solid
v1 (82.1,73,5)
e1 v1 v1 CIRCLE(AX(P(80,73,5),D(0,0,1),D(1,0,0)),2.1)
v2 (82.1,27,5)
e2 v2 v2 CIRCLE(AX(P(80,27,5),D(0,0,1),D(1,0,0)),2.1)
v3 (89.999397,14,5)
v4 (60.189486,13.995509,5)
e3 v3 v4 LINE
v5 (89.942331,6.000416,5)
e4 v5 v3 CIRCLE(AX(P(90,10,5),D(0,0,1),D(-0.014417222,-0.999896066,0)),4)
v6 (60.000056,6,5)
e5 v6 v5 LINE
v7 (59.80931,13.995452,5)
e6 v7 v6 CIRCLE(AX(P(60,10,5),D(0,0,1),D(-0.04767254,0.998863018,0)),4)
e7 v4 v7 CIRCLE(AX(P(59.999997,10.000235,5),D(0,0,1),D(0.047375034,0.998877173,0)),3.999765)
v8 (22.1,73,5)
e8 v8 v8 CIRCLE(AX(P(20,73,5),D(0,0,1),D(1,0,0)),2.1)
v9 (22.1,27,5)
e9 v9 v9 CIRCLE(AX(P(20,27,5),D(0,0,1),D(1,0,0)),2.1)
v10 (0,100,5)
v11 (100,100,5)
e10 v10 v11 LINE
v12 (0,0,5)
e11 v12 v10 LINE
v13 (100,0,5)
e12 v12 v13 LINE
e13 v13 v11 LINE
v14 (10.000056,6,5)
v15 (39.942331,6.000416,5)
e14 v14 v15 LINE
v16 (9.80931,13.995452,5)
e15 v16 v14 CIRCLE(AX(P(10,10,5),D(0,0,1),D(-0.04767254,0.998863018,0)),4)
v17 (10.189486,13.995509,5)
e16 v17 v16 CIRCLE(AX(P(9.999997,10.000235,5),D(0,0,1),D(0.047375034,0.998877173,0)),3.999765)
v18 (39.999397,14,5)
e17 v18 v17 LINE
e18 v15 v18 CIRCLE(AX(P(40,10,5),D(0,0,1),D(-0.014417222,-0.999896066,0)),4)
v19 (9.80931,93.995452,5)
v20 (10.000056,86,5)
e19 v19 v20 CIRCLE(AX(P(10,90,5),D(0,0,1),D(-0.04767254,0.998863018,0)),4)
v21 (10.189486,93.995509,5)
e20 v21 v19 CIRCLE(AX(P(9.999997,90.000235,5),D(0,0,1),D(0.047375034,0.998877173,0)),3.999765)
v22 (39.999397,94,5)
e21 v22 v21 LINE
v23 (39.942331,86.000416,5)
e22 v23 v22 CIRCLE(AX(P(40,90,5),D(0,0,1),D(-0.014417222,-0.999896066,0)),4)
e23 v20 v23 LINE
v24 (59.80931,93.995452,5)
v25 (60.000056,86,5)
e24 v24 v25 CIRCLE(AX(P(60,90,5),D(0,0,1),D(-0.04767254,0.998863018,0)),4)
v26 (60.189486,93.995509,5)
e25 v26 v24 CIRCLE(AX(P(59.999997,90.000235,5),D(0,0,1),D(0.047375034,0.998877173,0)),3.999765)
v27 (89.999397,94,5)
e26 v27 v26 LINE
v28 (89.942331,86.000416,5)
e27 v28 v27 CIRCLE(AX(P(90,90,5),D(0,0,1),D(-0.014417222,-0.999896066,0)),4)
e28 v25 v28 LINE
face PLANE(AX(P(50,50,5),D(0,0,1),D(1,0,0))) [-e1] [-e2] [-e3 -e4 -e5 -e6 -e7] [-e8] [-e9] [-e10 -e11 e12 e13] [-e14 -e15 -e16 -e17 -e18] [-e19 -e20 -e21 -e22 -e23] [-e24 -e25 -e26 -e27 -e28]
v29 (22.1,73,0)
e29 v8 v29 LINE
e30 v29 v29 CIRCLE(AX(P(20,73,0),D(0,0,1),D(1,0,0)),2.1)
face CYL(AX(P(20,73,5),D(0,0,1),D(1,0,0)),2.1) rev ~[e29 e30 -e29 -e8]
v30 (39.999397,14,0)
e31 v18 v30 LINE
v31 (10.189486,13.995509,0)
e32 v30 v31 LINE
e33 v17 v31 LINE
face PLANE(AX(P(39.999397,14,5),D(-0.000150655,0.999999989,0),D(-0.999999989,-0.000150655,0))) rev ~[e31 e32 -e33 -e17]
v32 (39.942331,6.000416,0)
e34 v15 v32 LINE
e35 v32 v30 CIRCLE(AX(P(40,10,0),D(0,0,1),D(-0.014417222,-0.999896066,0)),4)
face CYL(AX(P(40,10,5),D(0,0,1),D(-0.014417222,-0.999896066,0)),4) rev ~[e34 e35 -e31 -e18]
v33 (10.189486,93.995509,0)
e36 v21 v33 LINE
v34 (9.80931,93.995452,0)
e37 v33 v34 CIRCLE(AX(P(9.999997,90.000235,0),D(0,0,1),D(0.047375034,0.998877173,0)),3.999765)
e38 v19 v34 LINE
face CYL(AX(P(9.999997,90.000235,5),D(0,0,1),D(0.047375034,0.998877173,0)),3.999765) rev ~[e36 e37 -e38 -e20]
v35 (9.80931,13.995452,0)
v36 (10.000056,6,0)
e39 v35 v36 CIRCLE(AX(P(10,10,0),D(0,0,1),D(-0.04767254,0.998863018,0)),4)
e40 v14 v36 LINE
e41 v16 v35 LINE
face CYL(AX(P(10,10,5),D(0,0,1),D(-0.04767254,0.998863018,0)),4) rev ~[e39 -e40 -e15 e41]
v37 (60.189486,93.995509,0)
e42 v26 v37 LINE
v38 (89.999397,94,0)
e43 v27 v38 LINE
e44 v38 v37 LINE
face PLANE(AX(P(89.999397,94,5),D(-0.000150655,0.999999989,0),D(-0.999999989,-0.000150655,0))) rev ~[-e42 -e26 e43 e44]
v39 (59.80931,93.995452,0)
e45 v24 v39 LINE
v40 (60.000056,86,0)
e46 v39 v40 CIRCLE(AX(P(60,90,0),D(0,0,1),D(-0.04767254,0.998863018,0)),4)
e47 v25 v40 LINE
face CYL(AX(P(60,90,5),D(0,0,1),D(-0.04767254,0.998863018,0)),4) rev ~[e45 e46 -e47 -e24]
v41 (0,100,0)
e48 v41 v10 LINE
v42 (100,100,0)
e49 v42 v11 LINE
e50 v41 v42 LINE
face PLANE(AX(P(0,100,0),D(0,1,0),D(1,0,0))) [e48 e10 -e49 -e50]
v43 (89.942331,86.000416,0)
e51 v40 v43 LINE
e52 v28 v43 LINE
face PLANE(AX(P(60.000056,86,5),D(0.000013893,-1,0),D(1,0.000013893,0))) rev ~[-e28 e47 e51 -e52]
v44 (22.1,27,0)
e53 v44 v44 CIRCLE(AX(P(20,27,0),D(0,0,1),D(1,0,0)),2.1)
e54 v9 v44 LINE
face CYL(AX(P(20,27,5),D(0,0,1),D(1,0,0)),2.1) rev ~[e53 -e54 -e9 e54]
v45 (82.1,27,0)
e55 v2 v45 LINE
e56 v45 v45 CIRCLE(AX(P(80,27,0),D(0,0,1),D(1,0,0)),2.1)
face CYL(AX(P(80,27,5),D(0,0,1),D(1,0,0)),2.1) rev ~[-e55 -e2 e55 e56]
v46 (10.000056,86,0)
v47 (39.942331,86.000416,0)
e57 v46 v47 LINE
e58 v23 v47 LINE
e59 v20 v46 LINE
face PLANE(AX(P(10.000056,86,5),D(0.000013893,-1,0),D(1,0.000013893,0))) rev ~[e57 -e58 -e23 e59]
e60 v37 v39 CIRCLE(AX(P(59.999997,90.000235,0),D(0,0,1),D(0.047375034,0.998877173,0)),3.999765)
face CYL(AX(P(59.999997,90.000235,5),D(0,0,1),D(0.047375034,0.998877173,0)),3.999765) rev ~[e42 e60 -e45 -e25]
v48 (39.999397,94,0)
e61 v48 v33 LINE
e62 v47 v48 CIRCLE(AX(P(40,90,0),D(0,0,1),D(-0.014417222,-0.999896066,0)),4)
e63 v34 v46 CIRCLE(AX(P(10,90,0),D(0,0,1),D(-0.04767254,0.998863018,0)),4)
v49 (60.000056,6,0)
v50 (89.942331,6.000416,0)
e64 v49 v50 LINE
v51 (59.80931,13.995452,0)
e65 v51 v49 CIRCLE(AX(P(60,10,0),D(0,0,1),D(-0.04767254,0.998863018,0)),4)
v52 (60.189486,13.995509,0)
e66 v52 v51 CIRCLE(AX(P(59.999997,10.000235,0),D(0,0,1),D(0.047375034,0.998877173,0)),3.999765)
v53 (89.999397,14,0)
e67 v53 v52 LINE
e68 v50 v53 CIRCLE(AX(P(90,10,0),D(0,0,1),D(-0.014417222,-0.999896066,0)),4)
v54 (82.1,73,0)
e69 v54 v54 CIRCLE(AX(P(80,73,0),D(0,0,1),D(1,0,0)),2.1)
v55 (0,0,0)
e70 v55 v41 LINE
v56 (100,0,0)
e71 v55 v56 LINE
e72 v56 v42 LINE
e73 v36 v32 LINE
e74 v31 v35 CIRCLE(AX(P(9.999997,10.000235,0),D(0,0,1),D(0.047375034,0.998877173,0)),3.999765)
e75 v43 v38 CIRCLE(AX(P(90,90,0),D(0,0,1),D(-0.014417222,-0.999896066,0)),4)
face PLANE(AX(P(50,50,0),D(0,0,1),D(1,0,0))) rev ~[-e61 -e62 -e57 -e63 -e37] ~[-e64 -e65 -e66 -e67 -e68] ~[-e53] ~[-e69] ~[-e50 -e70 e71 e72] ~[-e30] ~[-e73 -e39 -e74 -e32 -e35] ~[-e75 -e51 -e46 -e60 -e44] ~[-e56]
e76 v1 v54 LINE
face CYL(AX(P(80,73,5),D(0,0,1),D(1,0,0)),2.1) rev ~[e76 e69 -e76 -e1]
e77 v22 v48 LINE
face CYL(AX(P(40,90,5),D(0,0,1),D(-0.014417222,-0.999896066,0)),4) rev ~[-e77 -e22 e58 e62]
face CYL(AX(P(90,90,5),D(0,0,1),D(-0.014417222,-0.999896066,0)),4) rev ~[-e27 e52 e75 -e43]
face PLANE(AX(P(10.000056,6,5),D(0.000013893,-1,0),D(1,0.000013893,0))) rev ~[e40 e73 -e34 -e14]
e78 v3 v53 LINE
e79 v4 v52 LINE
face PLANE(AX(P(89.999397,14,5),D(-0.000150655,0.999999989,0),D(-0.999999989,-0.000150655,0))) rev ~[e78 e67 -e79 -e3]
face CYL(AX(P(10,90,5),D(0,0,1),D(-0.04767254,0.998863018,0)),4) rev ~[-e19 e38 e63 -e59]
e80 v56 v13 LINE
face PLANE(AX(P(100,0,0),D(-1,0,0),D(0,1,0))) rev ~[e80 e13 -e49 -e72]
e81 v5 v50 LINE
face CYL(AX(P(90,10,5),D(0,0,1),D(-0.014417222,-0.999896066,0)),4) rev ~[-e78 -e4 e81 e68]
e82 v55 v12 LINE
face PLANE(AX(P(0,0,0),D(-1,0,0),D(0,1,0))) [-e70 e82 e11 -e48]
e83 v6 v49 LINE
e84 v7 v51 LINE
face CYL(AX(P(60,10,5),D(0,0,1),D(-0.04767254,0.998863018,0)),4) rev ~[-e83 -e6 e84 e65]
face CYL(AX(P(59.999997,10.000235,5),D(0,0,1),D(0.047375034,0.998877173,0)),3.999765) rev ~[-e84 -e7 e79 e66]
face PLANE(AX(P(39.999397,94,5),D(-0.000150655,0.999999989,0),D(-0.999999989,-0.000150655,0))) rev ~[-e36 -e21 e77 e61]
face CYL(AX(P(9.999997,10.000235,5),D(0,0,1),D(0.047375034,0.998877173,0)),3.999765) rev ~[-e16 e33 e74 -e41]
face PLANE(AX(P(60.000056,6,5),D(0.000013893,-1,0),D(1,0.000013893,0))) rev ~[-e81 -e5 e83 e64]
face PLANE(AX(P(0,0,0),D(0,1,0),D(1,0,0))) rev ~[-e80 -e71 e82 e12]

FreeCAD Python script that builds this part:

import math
import FreeCAD as App
import Part
import Sketcher
from FreeCAD import Vector


def add_polygon(sketch, points):
    """Adds a closed chain of lines whose ends are joined by coincident constraints."""
    first, n = sketch.GeometryCount, len(points)
    for a, b in zip(points, points[1:] + points[:1]):
        sketch.addGeometry(Part.LineSegment(App.Vector(*a, 0), App.Vector(*b, 0)), False)
    for i in range(n):
        sketch.addConstraint(Sketcher.Constraint("Coincident", first + i, 2, first + (i + 1) % n, 1))

doc = App.newDocument("Part")
body = doc.addObject("PartDesign::Body", "Body")

sketch1 = body.newObject("Sketcher::SketchObject", "Sketch")
sketch1.AttachmentSupport = (doc.getObject("XY_Plane"), [""])
sketch1.MapMode = "FlatFace"
add_polygon(sketch1, [(0, 100), (0, 0), (100, 0), (100, 100)])
sketch1.addConstraint([
    Sketcher.Constraint("Vertical", 0),
    Sketcher.Constraint("Horizontal", 1),
    Sketcher.Constraint("Vertical", 2),
    Sketcher.Constraint("Horizontal", 3),
    Sketcher.Constraint("Coincident", 0, 2, -1, 1),
    Sketcher.Constraint("Equal", 3, 0),
    Sketcher.Constraint("DistanceX", 1, 1, 1, 2, 100.0),
])
pad1 = body.newObject("PartDesign::Pad", "Pad")
pad1.Profile = sketch1
pad1.Length = 5

sketch2 = body.newObject("Sketcher::SketchObject", "Sketch001")
sketch2.AttachmentSupport = (doc.getObject("XY_Plane"), [""])
sketch2.MapMode = "FlatFace"
sketch2.AttachmentOffset = App.Placement(Vector(0, 0, 5), App.Rotation())
sketch2.addGeometry([
    Part.ArcOfCircle(Part.Circle(Vector(9.999997, 10.000235, 0), Vector(0, 0, 1), 3.999765), math.radians(87.284594), math.radians(92.732587)),
    Part.ArcOfCircle(Part.Circle(Vector(10, 10, 0), Vector(0, 0, 1), 4), math.radians(92.732471), math.radians(270.0008)),
    Part.LineSegment(Vector(10.000056, 6, 0), Vector(39.942331, 6.000416, 0)),
    Part.ArcOfCircle(Part.Circle(Vector(40, 10, 0), Vector(0, 0, 1), 4), math.radians(-90.826075), math.radians(90.008636)),
    Part.LineSegment(Vector(39.999397, 14, 0), Vector(10.189486, 13.995509, 0)),
    Part.LineSegment(Vector(10.000056, 86, 0), Vector(39.942331, 86.000416, 0)),
    Part.ArcOfCircle(Part.Circle(Vector(40, 90, 0), Vector(0, 0, 1), 4), math.radians(-90.826075), math.radians(90.008636)),
    Part.LineSegment(Vector(39.999397, 94, 0), Vector(10.189486, 93.995509, 0)),
    Part.ArcOfCircle(Part.Circle(Vector(9.999997, 90.000235, 0), Vector(0, 0, 1), 3.999765), math.radians(87.284594), math.radians(92.732587)),
    Part.ArcOfCircle(Part.Circle(Vector(10, 90, 0), Vector(0, 0, 1), 4), math.radians(92.732471), math.radians(270.0008)),
    Part.LineSegment(Vector(60.000056, 6, 0), Vector(89.942331, 6.000416, 0)),
    Part.ArcOfCircle(Part.Circle(Vector(90, 10, 0), Vector(0, 0, 1), 4), math.radians(-90.826075), math.radians(90.008636)),
    Part.LineSegment(Vector(89.999397, 14, 0), Vector(60.189486, 13.995509, 0)),
    Part.ArcOfCircle(Part.Circle(Vector(59.999997, 10.000235, 0), Vector(0, 0, 1), 3.999765), math.radians(87.284594), math.radians(92.732587)),
    Part.ArcOfCircle(Part.Circle(Vector(60, 10, 0), Vector(0, 0, 1), 4), math.radians(92.732471), math.radians(270.0008)),
    Part.LineSegment(Vector(60.000056, 86, 0), Vector(89.942331, 86.000416, 0)),
    Part.ArcOfCircle(Part.Circle(Vector(90, 90, 0), Vector(0, 0, 1), 4), math.radians(-90.826075), math.radians(90.008636)),
    Part.LineSegment(Vector(89.999397, 94, 0), Vector(60.189486, 93.995509, 0)),
    Part.ArcOfCircle(Part.Circle(Vector(59.999997, 90.000235, 0), Vector(0, 0, 1), 3.999765), math.radians(87.284594), math.radians(92.732587)),
    Part.ArcOfCircle(Part.Circle(Vector(60, 90, 0), Vector(0, 0, 1), 4), math.radians(92.732471), math.radians(270.0008)),
], False)
sketch2.addConstraint([
    Sketcher.Constraint("Coincident", 0, 2, 1, 1),
    Sketcher.Constraint("Tangent", 1, 2, 2, 1),
    Sketcher.Constraint("Coincident", 2, 2, 3, 1),
    Sketcher.Constraint("Tangent", 3, 2, 4, 1),
    Sketcher.Constraint("Coincident", 4, 2, 0, 1),
    Sketcher.Constraint("Coincident", 5, 2, 6, 1),
    Sketcher.Constraint("Tangent", 6, 2, 7, 1),
    Sketcher.Constraint("Coincident", 7, 2, 8, 1),
    Sketcher.Constraint("Coincident", 8, 2, 9, 1),
    Sketcher.Constraint("Tangent", 9, 2, 5, 1),
    Sketcher.Constraint("Coincident", 10, 2, 11, 1),
    Sketcher.Constraint("Tangent", 11, 2, 12, 1),
    Sketcher.Constraint("Coincident", 12, 2, 13, 1),
    Sketcher.Constraint("Coincident", 13, 2, 14, 1),
    Sketcher.Constraint("Tangent", 14, 2, 10, 1),
    Sketcher.Constraint("Coincident", 15, 2, 16, 1),
    Sketcher.Constraint("Tangent", 16, 2, 17, 1),
    Sketcher.Constraint("Coincident", 17, 2, 18, 1),
    Sketcher.Constraint("Coincident", 18, 2, 19, 1),
    Sketcher.Constraint("Tangent", 19, 2, 15, 1),
    Sketcher.Constraint("Equal", 1, 3),
    Sketcher.Constraint("Equal", 3, 6),
    Sketcher.Constraint("Equal", 0, 8),
    Sketcher.Constraint("Equal", 6, 9),
    Sketcher.Constraint("Equal", 9, 11),
    Sketcher.Constraint("Equal", 8, 13),
    Sketcher.Constraint("Equal", 11, 14),
    Sketcher.Constraint("Equal", 14, 16),
    Sketcher.Constraint("Equal", 13, 18),
    Sketcher.Constraint("Equal", 16, 19),
    Sketcher.Constraint("Parallel", 2, 5),
    Sketcher.Constraint("Parallel", 4, 7),
    Sketcher.Constraint("Parallel", 5, 10),
    Sketcher.Constraint("Parallel", 7, 12),
    Sketcher.Constraint("Parallel", 10, 15),
    Sketcher.Constraint("Parallel", 12, 17),
    Sketcher.Constraint("Horizontal", 1, 3, 3, 3),
    Sketcher.Constraint("Horizontal", 6, 3, 9, 3),
    Sketcher.Constraint("Horizontal", 3, 3, 11, 3),
    Sketcher.Constraint("Horizontal", 0, 3, 13, 3),
    Sketcher.Constraint("Horizontal", 11, 3, 14, 3),
    Sketcher.Constraint("Horizontal", 9, 3, 16, 3),
    Sketcher.Constraint("Horizontal", 8, 3, 18, 3),
    Sketcher.Constraint("Horizontal", 16, 3, 19, 3),
    Sketcher.Constraint("Horizontal", 0, 2, 13, 2),
    Sketcher.Constraint("Horizontal", 8, 2, 18, 2),
    Sketcher.Constraint("Vertical", 3, 3, 6, 3),
    Sketcher.Constraint("Vertical", 0, 3, 8, 3),
    Sketcher.Constraint("Vertical", 1, 3, 9, 3),
    Sketcher.Constraint("Vertical", 11, 3, 16, 3),
    Sketcher.Constraint("Vertical", 13, 3, 18, 3),
    Sketcher.Constraint("Vertical", 0, 2, 8, 2),
    Sketcher.Constraint("Equal", 5, 10),
    Sketcher.Constraint("Radius", 1, 4.0),
    Sketcher.Constraint("DistanceX", -1, 1, 1, 3, 10.0),
    Sketcher.Constraint("DistanceY", -1, 1, 1, 3, 10.0),
    Sketcher.Constraint("DistanceX", -1, 1, 3, 3, 40.0),
    Sketcher.Constraint("DistanceY", -1, 1, 6, 3, 90.0),
    Sketcher.Constraint("DistanceX", -1, 1, 11, 3, 90.0),
    Sketcher.Constraint("Radius", 0, 3.999765),
    Sketcher.Constraint("DistanceX", 3, 2, 13, 3, 20.0006),
    Sketcher.Constraint("Distance", 4, 29.809911),
    Sketcher.Constraint("DistanceX", -1, 1, 0, 2, 9.80931),
    Sketcher.Constraint("DistanceX", -1, 1, 2, 2, 39.942331),
])
pocket1 = body.newObject("PartDesign::Pocket", "Pocket")
pocket1.Profile = sketch2
pocket1.Length = 25

sketch3 = body.newObject("Sketcher::SketchObject", "Sketch002")
sketch3.AttachmentSupport = (doc.getObject("XY_Plane"), [""])
sketch3.MapMode = "FlatFace"
sketch3.AttachmentOffset = App.Placement(Vector(0, 0, 5), App.Rotation())
sketch3.addGeometry([
    Part.Circle(Vector(20, 73, 0), Vector(0, 0, 1), 2.1),
    Part.Circle(Vector(20, 27, 0), Vector(0, 0, 1), 2.1),
    Part.Circle(Vector(80, 27, 0), Vector(0, 0, 1), 2.1),
    Part.Circle(Vector(80, 73, 0), Vector(0, 0, 1), 2.1),
], False)
sketch3.addConstraint([
    Sketcher.Constraint("Equal", 0, 1),
    Sketcher.Constraint("Equal", 1, 2),
    Sketcher.Constraint("Equal", 2, 3),
    Sketcher.Constraint("Horizontal", 1, 3, 2, 3),
    Sketcher.Constraint("Horizontal", 0, 3, 3, 3),
    Sketcher.Constraint("Vertical", 0, 3, 1, 3),
    Sketcher.Constraint("Vertical", 2, 3, 3, 3),
    Sketcher.Constraint("Diameter", 0, 4.2),
    Sketcher.Constraint("DistanceX", -1, 1, 0, 3, 20.0),
    Sketcher.Constraint("DistanceY", -1, 1, 0, 3, 73.0),
    Sketcher.Constraint("DistanceY", -1, 1, 1, 3, 27.0),
    Sketcher.Constraint("DistanceX", -1, 1, 2, 3, 80.0),
])
pocket2 = body.newObject("PartDesign::Pocket", "Pocket001")
pocket2.Profile = sketch3
pocket2.Length = 25

doc.recompute()
